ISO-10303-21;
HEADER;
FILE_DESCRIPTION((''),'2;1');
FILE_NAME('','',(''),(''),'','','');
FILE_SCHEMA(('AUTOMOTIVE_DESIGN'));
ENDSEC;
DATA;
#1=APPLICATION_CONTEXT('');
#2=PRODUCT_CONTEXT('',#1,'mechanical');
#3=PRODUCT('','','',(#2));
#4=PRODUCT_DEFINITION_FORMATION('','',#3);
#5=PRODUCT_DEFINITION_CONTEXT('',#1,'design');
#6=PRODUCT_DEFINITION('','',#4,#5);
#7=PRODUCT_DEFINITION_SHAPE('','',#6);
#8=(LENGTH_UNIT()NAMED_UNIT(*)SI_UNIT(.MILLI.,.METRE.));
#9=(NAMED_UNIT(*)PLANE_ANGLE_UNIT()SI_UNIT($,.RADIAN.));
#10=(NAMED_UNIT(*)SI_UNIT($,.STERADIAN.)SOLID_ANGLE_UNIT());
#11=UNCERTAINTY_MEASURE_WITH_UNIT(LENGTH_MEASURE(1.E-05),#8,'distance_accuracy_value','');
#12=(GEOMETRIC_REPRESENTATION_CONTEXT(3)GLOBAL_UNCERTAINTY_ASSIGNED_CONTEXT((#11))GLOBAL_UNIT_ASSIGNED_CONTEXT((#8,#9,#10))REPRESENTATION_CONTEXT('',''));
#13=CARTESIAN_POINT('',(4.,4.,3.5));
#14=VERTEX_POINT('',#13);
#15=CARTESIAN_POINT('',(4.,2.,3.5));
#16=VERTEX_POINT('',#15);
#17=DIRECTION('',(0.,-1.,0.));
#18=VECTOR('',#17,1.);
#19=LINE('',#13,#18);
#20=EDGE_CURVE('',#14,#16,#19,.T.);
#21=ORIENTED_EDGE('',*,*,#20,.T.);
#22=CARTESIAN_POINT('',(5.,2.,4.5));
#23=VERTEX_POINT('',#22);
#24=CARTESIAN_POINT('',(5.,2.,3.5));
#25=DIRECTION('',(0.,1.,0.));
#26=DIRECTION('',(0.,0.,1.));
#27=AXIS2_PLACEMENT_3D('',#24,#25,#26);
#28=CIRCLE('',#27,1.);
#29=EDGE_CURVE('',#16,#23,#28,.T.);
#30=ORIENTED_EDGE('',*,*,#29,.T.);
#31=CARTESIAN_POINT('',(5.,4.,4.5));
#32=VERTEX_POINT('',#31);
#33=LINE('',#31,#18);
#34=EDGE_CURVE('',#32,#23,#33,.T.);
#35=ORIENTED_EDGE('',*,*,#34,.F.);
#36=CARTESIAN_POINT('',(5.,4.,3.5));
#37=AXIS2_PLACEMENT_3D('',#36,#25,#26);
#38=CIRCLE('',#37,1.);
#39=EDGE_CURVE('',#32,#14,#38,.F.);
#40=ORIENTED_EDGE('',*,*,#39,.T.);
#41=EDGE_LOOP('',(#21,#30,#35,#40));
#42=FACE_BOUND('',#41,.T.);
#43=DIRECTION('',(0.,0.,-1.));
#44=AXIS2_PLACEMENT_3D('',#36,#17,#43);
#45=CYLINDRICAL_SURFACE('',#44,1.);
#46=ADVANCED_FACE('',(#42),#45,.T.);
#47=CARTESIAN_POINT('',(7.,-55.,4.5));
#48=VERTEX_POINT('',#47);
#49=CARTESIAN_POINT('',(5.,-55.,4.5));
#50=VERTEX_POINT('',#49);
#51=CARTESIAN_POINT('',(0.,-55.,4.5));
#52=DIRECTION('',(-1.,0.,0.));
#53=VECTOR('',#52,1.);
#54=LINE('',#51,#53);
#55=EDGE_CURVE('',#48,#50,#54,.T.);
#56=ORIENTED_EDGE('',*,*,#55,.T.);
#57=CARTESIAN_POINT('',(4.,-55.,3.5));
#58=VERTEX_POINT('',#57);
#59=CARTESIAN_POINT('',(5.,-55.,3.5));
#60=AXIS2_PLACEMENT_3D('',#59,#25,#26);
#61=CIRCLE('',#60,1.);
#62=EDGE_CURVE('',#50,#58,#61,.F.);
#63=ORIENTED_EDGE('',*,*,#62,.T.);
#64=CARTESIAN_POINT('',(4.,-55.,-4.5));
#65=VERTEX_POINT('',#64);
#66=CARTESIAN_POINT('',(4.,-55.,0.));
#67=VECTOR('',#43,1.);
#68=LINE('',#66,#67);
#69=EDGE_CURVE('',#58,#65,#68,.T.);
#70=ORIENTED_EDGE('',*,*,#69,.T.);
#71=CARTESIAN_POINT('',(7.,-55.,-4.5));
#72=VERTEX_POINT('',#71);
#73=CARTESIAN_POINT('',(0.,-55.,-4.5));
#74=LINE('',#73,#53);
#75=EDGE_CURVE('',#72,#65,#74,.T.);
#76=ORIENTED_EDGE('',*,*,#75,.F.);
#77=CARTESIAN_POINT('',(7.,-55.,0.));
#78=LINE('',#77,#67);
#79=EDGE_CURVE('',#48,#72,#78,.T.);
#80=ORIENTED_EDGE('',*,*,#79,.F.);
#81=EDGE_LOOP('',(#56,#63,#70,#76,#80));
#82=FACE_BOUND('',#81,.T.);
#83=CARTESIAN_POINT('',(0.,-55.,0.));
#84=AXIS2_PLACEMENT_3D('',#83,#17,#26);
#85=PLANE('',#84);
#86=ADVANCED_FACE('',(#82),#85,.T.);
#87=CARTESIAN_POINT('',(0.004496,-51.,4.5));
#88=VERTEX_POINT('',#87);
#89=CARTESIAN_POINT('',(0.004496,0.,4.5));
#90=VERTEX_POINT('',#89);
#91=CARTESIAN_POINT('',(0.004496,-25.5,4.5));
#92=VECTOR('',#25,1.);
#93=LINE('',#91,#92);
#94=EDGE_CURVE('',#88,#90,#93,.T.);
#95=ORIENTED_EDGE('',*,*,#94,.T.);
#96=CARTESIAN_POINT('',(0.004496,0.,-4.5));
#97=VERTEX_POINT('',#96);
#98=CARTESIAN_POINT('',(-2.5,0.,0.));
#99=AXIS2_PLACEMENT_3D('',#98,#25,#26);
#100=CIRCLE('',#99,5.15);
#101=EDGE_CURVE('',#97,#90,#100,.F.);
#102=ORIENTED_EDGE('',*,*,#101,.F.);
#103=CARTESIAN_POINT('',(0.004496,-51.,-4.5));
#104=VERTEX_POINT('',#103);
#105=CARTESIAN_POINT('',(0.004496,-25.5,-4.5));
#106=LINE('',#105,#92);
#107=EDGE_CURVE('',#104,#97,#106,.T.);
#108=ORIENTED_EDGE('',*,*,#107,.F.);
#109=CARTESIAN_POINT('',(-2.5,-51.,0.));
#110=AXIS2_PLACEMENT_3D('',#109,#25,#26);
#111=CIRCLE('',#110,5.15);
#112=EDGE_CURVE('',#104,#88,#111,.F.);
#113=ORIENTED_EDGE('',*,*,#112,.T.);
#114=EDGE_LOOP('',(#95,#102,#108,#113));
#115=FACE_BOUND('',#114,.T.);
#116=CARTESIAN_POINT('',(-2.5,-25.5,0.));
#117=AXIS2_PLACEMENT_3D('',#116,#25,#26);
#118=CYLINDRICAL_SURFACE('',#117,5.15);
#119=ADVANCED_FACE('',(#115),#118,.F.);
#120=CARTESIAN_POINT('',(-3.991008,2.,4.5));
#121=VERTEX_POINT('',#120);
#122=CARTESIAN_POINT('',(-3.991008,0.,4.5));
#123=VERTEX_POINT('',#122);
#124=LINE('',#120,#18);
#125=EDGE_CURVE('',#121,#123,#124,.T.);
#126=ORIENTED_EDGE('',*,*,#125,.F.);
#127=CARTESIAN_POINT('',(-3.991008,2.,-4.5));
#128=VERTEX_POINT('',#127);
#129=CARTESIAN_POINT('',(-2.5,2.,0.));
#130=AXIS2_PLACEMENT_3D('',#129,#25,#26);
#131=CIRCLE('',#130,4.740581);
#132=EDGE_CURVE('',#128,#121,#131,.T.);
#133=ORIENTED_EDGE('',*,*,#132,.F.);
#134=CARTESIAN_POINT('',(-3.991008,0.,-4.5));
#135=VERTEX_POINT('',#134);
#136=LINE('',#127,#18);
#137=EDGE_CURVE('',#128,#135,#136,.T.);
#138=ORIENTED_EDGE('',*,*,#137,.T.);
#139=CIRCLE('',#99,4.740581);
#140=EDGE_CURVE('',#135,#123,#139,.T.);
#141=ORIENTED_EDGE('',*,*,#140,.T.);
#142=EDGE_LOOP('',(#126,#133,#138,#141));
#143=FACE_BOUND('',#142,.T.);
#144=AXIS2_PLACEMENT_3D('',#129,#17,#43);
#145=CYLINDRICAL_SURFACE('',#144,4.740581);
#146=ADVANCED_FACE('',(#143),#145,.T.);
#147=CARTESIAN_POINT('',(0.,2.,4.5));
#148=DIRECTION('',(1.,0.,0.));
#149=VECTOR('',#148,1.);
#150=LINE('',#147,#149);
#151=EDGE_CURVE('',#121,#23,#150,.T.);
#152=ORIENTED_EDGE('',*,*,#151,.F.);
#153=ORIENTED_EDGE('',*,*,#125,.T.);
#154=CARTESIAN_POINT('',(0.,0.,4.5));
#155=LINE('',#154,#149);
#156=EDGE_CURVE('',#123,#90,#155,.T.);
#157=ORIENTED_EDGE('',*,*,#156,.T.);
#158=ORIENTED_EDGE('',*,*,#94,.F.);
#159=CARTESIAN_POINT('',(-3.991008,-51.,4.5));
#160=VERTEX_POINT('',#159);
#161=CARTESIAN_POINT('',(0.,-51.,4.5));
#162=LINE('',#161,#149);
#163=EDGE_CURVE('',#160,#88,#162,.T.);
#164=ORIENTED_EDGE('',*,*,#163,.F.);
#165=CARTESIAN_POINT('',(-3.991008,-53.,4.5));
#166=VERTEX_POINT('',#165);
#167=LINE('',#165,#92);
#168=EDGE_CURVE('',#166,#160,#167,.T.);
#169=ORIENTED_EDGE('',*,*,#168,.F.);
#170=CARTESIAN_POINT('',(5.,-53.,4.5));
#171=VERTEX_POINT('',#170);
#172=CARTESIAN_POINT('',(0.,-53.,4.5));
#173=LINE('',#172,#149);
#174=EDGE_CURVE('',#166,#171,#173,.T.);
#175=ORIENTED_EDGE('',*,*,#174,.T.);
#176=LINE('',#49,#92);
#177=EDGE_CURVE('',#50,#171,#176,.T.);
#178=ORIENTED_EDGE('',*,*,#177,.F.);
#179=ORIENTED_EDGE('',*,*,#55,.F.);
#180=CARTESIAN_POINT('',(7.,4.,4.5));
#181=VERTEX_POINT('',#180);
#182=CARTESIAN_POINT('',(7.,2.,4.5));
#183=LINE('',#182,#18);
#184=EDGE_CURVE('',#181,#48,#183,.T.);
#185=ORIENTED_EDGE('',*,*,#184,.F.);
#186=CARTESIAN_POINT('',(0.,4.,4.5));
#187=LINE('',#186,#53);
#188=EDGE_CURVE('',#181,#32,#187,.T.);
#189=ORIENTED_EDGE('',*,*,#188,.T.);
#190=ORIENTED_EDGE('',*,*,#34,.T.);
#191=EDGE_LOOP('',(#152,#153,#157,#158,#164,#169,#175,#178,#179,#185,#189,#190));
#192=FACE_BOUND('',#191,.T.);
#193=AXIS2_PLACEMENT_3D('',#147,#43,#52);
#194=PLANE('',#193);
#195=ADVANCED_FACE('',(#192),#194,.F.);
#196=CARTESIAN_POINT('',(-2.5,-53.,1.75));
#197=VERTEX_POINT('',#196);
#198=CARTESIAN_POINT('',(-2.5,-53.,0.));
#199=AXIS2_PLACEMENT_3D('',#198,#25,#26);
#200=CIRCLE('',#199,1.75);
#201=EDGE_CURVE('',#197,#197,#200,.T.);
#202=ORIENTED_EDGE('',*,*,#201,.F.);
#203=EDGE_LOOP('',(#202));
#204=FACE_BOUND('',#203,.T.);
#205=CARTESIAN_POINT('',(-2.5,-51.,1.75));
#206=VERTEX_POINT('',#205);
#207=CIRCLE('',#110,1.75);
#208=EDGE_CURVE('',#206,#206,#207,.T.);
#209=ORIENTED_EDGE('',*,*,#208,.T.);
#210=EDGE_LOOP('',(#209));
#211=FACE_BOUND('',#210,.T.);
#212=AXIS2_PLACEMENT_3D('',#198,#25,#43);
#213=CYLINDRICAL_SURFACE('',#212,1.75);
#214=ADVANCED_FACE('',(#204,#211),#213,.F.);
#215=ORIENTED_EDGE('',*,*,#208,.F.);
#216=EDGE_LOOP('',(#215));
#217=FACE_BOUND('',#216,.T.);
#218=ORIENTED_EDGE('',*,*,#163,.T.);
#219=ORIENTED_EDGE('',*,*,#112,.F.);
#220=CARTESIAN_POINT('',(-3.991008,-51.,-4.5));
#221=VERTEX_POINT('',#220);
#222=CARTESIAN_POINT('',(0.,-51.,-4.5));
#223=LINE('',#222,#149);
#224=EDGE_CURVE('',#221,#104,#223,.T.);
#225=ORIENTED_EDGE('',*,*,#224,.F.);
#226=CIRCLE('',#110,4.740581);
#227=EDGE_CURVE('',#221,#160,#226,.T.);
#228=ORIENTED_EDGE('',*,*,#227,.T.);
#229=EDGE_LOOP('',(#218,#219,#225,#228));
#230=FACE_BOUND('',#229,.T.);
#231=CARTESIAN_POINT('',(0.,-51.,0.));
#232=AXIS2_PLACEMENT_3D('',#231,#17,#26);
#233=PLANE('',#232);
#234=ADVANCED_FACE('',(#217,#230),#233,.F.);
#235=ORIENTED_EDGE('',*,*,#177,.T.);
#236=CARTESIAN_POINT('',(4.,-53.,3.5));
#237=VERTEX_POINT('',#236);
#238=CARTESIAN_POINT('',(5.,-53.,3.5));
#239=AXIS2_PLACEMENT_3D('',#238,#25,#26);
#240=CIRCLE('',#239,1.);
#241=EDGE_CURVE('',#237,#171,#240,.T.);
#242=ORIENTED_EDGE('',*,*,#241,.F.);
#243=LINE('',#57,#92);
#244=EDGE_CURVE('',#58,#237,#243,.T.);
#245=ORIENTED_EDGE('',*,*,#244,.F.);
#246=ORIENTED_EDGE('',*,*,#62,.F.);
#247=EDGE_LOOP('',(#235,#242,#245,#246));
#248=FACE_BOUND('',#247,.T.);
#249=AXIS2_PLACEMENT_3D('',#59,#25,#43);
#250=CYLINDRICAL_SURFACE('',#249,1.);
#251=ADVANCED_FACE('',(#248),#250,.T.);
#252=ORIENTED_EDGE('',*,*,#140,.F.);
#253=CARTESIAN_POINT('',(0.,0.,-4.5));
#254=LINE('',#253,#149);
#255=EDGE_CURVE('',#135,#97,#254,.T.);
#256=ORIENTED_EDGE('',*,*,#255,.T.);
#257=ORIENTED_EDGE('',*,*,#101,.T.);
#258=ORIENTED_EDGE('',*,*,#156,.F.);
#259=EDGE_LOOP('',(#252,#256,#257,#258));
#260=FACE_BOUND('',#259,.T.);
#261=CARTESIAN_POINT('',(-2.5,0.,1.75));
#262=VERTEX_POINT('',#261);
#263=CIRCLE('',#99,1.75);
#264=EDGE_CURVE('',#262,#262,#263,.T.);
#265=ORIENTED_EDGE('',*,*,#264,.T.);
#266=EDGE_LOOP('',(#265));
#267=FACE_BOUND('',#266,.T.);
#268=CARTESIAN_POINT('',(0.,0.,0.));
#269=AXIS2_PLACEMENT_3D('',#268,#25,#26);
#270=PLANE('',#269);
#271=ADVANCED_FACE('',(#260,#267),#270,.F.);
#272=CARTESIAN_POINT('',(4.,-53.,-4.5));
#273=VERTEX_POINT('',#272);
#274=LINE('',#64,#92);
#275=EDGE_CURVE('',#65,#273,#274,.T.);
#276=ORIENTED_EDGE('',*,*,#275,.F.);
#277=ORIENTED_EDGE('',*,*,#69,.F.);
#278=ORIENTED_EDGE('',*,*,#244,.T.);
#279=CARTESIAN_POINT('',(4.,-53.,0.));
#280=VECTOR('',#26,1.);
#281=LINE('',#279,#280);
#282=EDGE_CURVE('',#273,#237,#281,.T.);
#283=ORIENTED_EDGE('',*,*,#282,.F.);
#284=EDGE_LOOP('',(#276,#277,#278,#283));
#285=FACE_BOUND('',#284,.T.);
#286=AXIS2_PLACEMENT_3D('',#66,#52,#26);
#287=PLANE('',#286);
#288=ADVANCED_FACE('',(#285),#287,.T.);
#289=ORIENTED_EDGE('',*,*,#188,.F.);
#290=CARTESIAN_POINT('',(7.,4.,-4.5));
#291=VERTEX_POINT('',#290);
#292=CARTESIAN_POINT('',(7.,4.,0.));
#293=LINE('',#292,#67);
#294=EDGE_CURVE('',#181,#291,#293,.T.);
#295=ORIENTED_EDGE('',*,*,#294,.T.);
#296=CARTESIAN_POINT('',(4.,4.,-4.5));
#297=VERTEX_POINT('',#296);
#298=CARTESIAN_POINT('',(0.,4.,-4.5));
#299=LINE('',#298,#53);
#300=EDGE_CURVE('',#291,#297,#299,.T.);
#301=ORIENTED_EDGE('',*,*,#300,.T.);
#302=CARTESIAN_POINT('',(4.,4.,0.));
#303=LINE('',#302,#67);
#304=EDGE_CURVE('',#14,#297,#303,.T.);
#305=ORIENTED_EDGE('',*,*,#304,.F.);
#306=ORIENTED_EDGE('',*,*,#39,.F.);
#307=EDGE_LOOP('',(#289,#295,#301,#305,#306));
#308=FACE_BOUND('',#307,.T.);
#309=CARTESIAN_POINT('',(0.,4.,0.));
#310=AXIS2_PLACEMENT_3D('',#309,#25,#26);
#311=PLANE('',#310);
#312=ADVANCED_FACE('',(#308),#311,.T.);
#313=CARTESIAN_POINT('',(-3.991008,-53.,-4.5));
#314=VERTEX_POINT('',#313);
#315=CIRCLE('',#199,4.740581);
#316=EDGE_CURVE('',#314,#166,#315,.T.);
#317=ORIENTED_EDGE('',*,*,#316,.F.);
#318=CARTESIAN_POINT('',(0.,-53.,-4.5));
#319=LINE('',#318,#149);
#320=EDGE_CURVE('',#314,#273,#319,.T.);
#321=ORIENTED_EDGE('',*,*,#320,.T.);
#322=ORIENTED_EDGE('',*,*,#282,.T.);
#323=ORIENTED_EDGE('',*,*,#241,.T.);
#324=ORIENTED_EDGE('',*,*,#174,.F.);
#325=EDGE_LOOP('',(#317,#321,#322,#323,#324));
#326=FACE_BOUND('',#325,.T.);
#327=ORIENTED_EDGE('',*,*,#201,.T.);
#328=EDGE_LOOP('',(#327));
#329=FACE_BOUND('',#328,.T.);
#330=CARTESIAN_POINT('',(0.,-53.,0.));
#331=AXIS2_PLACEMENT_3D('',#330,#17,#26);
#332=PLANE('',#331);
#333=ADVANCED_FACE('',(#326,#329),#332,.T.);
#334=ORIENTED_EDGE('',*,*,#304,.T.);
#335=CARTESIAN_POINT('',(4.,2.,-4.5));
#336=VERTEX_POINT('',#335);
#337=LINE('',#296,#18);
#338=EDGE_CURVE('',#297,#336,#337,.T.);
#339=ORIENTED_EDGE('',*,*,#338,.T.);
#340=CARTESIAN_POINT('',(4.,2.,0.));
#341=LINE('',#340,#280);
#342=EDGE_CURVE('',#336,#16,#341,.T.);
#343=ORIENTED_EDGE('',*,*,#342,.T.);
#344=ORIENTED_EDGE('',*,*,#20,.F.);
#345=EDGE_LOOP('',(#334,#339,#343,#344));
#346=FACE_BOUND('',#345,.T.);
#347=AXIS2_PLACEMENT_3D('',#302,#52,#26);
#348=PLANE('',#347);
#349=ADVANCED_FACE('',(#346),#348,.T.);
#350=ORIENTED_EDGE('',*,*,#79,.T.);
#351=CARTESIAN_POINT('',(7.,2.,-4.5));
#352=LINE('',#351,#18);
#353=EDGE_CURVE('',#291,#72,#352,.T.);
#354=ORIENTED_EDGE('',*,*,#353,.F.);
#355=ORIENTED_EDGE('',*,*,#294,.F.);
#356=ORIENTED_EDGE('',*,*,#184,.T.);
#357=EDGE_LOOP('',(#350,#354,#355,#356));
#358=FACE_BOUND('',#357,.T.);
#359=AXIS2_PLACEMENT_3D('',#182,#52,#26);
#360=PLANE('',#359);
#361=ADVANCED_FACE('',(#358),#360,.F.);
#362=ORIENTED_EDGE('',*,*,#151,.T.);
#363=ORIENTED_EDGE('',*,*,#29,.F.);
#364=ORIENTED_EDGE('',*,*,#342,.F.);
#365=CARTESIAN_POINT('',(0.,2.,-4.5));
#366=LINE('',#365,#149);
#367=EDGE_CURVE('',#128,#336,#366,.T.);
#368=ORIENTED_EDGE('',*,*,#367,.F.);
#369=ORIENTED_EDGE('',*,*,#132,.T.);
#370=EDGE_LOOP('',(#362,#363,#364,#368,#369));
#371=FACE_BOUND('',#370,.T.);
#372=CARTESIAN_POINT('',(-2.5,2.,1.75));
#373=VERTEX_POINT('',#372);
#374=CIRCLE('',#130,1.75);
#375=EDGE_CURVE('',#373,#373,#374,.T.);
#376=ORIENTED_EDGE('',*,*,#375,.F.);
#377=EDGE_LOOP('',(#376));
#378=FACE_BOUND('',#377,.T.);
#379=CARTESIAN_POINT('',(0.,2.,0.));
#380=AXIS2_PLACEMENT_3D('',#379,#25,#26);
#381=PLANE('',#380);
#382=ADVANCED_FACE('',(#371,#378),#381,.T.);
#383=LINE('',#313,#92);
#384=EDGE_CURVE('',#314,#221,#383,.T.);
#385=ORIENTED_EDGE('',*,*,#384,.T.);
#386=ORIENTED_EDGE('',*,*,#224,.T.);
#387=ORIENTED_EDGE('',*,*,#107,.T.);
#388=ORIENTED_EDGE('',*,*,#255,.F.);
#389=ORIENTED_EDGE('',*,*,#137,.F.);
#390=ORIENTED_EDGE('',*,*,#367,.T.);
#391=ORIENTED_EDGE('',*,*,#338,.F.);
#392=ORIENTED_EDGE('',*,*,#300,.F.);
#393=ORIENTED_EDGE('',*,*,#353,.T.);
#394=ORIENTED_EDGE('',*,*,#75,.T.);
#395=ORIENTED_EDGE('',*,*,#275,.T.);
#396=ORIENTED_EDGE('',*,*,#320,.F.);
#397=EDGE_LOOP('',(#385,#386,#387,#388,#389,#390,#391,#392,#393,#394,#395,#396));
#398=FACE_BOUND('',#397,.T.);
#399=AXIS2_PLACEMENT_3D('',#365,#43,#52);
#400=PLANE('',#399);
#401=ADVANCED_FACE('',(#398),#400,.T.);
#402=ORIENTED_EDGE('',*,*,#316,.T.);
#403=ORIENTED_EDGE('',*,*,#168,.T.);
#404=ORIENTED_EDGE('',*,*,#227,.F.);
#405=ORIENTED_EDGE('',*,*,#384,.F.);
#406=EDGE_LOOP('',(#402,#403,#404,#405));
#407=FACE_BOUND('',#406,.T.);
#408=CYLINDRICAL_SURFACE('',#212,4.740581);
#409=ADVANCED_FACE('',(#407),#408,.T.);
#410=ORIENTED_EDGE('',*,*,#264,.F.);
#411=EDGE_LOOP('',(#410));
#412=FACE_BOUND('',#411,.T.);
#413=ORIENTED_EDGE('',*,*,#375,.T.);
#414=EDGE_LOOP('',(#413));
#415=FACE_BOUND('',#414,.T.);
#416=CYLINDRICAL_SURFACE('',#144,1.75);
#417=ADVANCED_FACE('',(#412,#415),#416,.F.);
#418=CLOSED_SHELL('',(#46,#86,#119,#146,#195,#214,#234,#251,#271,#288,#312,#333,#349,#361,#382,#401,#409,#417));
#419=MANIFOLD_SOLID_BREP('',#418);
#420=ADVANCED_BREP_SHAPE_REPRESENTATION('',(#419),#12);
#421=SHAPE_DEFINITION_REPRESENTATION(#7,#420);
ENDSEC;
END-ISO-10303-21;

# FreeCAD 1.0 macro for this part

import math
import FreeCAD as App
import Part
import Sketcher

V = App.Vector
Q = App.Units.Quantity

doc = App.newDocument("Part")
body = doc.addObject("PartDesign::Body", "Body")

# Sketch on XZ plane
sketch1 = body.newObject("Sketcher::SketchObject", "Sketch")
sketch1.AttachmentSupport = (doc.getObject("XZ_Plane"), [""])
sketch1.MapMode = "FlatFace"
sketch1.addGeometry(Part.ArcOfCircle(Part.Circle(V(-2.5, 0, 0), V(0, 0, 1), 4.7), math.radians(108), math.radians(252)), False)
sketch1.addGeometry(Part.LineSegment(V(-4, 4.5, 0), V(7, 4.5, 0)), False)
sketch1.addGeometry(Part.LineSegment(V(7, 4.5, 0), V(7, -4.5, 0)), False)
sketch1.addGeometry(Part.LineSegment(V(7, -4.5, 0), V(-4, -4.5, 0)), False)
sketch1.addGeometry(Part.Circle(V(-2.5, 0, 0), V(0, 0, 1), 1.8), False)
sketch1.addConstraint(Sketcher.Constraint("Coincident", 0, 1, 1, 1))
sketch1.addConstraint(Sketcher.Constraint("Coincident", 1, 2, 2, 1))
sketch1.addConstraint(Sketcher.Constraint("Coincident", 2, 2, 3, 1))
sketch1.addConstraint(Sketcher.Constraint("Coincident", 3, 2, 0, 2))
sketch1.addConstraint(Sketcher.Constraint("Horizontal", 1))
sketch1.addConstraint(Sketcher.Constraint("Vertical", 2))
sketch1.addConstraint(Sketcher.Constraint("Horizontal", 3))
sketch1.addConstraint(Sketcher.Constraint("Coincident", 4, 3, 0, 3))
sketch1.addConstraint(Sketcher.Constraint("Symmetric", 0, 1, 3, 2, -1))
sketch1.addConstraint(Sketcher.Constraint("Diameter", 4, Q("3.5 mm")))
sketch1.addConstraint(Sketcher.Constraint("DistanceY", 2, 2, 2, 1, Q("9 mm")))
sketch1.addConstraint(Sketcher.Constraint("DistanceX", -1, 1, 1, 2, Q("7 mm")))
sketch1.addConstraint(Sketcher.Constraint("DistanceX", 0, 3, -1, 1, Q("2.5 mm")))
sketch1.addConstraint(Sketcher.Constraint("Radius", 0, Q("4.740581 mm")))
pad1 = body.newObject("PartDesign::Pad", "Pad")
pad1.Profile = sketch1
pad1.Length = 2
pad1.Reversed = True

# Sketch on XZ plane
sketch2 = body.newObject("Sketcher::SketchObject", "Sketch001")
sketch2.AttachmentSupport = (doc.getObject("XZ_Plane"), [""])
sketch2.MapMode = "FlatFace"
sketch2.addGeometry(Part.ArcOfCircle(Part.Circle(V(-2, 0, 0), V(0, 0, 1), 5), math.radians(-61), math.radians(61)), False)
sketch2.addGeometry(Part.LineSegment(V(0, 4, 0), V(7, 4, 0)), False)
sketch2.addGeometry(Part.LineSegment(V(7, 4, 0), V(7, -4, 0)), False)
sketch2.addGeometry(Part.LineSegment(V(7, -4, 0), V(0, -4, 0)), False)
sketch2.addConstraint(Sketcher.Constraint("Coincident", 0, 2, 1, 1))
sketch2.addConstraint(Sketcher.Constraint("Coincident", 1, 2, 2, 1))
sketch2.addConstraint(Sketcher.Constraint("Coincident", 2, 2, 3, 1))
sketch2.addConstraint(Sketcher.Constraint("Coincident", 3, 2, 0, 1))
sketch2.addConstraint(Sketcher.Constraint("Horizontal", 1))
sketch2.addConstraint(Sketcher.Constraint("Vertical", 2))
sketch2.addConstraint(Sketcher.Constraint("Horizontal", 3))
sketch2.addConstraint(Sketcher.Constraint("Symmetric", 0, 2, 3, 2, -1))
sketch2.addConstraint(Sketcher.Constraint("DistanceY", 2, 2, 2, 1, Q("9 mm")))
sketch2.addConstraint(Sketcher.Constraint("Radius", 0, Q("5.15 mm")))
sketch2.addConstraint(Sketcher.Constraint("DistanceX", -1, 1, 1, 2, Q("7 mm")))
sketch2.addConstraint(Sketcher.Constraint("DistanceX", 0, 3, -1, 1, Q("2.5 mm")))
pad2 = body.newObject("PartDesign::Pad", "Pad001")
pad2.Profile = sketch2
pad2.Length = 25.5

# Sketch on XZ plane
sketch3 = body.newObject("Sketcher::SketchObject", "Sketch002")
sketch3.AttachmentSupport = (doc.getObject("XZ_Plane"), [""])
sketch3.MapMode = "FlatFace"
sketch3.addGeometry(Part.LineSegment(V(4, -4.5, 0), V(4, 3.5, 0)), False)
sketch3.addGeometry(Part.ArcOfCircle(Part.Circle(V(5, 3.5, 0), V(0, 0, 1), 1), math.radians(90), math.radians(180)), False)
sketch3.addGeometry(Part.LineSegment(V(5, 4.5, 0), V(7, 4.5, 0)), False)
sketch3.addGeometry(Part.LineSegment(V(7, 4.5, 0), V(7, -4.5, 0)), False)
sketch3.addGeometry(Part.LineSegment(V(7, -4.5, 0), V(4, -4.5, 0)), False)
sketch3.addConstraint(Sketcher.Constraint("Tangent", 0, 2, 1, 2))
sketch3.addConstraint(Sketcher.Constraint("Tangent", 1, 1, 2, 1))
sketch3.addConstraint(Sketcher.Constraint("Coincident", 2, 2, 3, 1))
sketch3.addConstraint(Sketcher.Constraint("Coincident", 3, 2, 4, 1))
sketch3.addConstraint(Sketcher.Constraint("Coincident", 4, 2, 0, 1))
sketch3.addConstraint(Sketcher.Constraint("Vertical", 0))
sketch3.addConstraint(Sketcher.Constraint("Horizontal", 2))
sketch3.addConstraint(Sketcher.Constraint("Vertical", 3))
sketch3.addConstraint(Sketcher.Constraint("Horizontal", 4))
sketch3.addConstraint(Sketcher.Constraint("Radius", 1, Q("1 mm")))
sketch3.addConstraint(Sketcher.Constraint("DistanceX", 2, 1, 2, 2, Q("2 mm")))
sketch3.addConstraint(Sketcher.Constraint("DistanceY", 0, 1, 0, 2, Q("8 mm")))
sketch3.addConstraint(Sketcher.Constraint("DistanceX", -1, 1, 1, 3, Q("5 mm")))
sketch3.addConstraint(Sketcher.Constraint("DistanceY", -1, 1, 1, 3, Q("3.5 mm")))
pad3 = body.newObject("PartDesign::Pad", "Pad002")
pad3.Profile = sketch3
pad3.Length = 4
pad3.Reversed = True
body2 = doc.addObject("PartDesign::Body", "Body001")
doc.recompute()

body2.BaseFeature = body
doc.recompute()

mirroring = doc.addObject("Part::Mirroring", "Mirroring")
mirroring.Source = body
mirroring.Base = V(0, -25.5, 0)
mirroring.Normal = V(0, 1, 0)
body3 = doc.addObject("PartDesign::Body", "Body002")
body3.BaseFeature = mirroring
boolean = body2.newObject("PartDesign::Boolean", "Boolean")
boolean.Type = "Fuse"
boolean.addObjects([body3])
doc.recompute()
mirroring.Visibility = False

doc.recompute()
